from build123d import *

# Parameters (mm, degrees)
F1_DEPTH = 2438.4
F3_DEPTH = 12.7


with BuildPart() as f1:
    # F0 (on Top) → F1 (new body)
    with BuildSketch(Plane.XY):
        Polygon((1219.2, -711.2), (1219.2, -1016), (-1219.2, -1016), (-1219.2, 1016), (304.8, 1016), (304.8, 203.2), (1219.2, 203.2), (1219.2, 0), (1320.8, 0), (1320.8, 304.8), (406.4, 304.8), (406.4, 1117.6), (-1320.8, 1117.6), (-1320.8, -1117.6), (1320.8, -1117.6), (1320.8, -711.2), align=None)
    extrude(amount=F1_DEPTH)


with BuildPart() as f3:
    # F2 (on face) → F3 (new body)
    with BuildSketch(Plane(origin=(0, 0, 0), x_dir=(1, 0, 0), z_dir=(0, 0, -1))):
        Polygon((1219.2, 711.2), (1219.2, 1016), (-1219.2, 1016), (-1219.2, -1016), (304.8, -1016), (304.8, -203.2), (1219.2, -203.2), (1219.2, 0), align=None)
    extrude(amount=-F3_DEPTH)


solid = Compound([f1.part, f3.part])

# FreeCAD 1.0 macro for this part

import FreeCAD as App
import Part
import Sketcher

V = App.Vector
Q = App.Units.Quantity

doc = App.newDocument("Part")
body = doc.addObject("PartDesign::Body", "Body")

sketch1 = body.newObject("Sketcher::SketchObject", "Sketch")
sketch1.AttachmentSupport = (doc.getObject("XY_Plane"), [""])
sketch1.MapMode = "FlatFace"
sketch1.addGeometry([
    Part.LineSegment(V(1219, -711, 0), V(1219, -1016, 0)),
    Part.LineSegment(V(1219, -1016, 0), V(-1219, -1016, 0)),
    Part.LineSegment(V(-1219, -1016, 0), V(-1219, 1016, 0)),
    Part.LineSegment(V(-1219, 1016, 0), V(305, 1016, 0)),
    Part.LineSegment(V(305, 1016, 0), V(305, 203, 0)),
    Part.LineSegment(V(305, 203, 0), V(1219, 203, 0)),
    Part.LineSegment(V(1219, 203, 0), V(1219, 0, 0)),
    Part.LineSegment(V(1219, 0, 0), V(1321, 0, 0)),
    Part.LineSegment(V(1321, 0, 0), V(1321, 305, 0)),
    Part.LineSegment(V(1321, 305, 0), V(406, 305, 0)),
    Part.LineSegment(V(406, 305, 0), V(406, 1118, 0)),
    Part.LineSegment(V(406, 1118, 0), V(-1321, 1118, 0)),
    Part.LineSegment(V(-1321, 1118, 0), V(-1321, -1118, 0)),
    Part.LineSegment(V(-1321, -1118, 0), V(1321, -1118, 0)),
    Part.LineSegment(V(1321, -1118, 0), V(1321, -711, 0)),
    Part.LineSegment(V(1321, -711, 0), V(1219, -711, 0)),
], False)
sketch1.addConstraint([
    Sketcher.Constraint("Coincident", 0, 2, 1, 1),
    Sketcher.Constraint("Coincident", 1, 2, 2, 1),
    Sketcher.Constraint("Coincident", 2, 2, 3, 1),
    Sketcher.Constraint("Coincident", 3, 2, 4, 1),
    Sketcher.Constraint("Coincident", 4, 2, 5, 1),
    Sketcher.Constraint("Coincident", 5, 2, 6, 1),
    Sketcher.Constraint("Coincident", 6, 2, 7, 1),
    Sketcher.Constraint("Coincident", 7, 2, 8, 1),
    Sketcher.Constraint("Coincident", 8, 2, 9, 1),
    Sketcher.Constraint("Coincident", 9, 2, 10, 1),
    Sketcher.Constraint("Coincident", 10, 2, 11, 1),
    Sketcher.Constraint("Coincident", 11, 2, 12, 1),
    Sketcher.Constraint("Coincident", 12, 2, 13, 1),
    Sketcher.Constraint("Coincident", 13, 2, 14, 1),
    Sketcher.Constraint("Coincident", 14, 2, 15, 1),
    Sketcher.Constraint("Coincident", 15, 2, 0, 1),
    Sketcher.Constraint("Vertical", 0),
    Sketcher.Constraint("Horizontal", 1),
    Sketcher.Constraint("Vertical", 2),
    Sketcher.Constraint("Horizontal", 3),
    Sketcher.Constraint("Vertical", 4),
    Sketcher.Constraint("Horizontal", 5),
    Sketcher.Constraint("Vertical", 6),
    Sketcher.Constraint("Horizontal", 7),
    Sketcher.Constraint("Vertical", 8),
    Sketcher.Constraint("Horizontal", 9),
    Sketcher.Constraint("Vertical", 10),
    Sketcher.Constraint("Horizontal", 11),
    Sketcher.Constraint("Vertical", 12),
    Sketcher.Constraint("Horizontal", 13),
    Sketcher.Constraint("Vertical", 14),
    Sketcher.Constraint("Horizontal", 15),
    Sketcher.Constraint("Symmetric", 0, 2, 2, 2, -1, 1),
    Sketcher.Constraint("Symmetric", 11, 2, 13, 2, -1, 1),
    Sketcher.Constraint("PointOnObject", 6, 2, -1),
    Sketcher.Constraint("Vertical", 0, 2, 5, 2),
    Sketcher.Constraint("Vertical", 8, 2, 13, 2),
    Sketcher.Constraint("Equal", 5, 9),
    Sketcher.Constraint("Equal", 0, 8),
    Sketcher.Constraint("Equal", 4, 10),
    Sketcher.Constraint("DistanceX", 1, 2, 1, 1, Q("96 in")),
    Sketcher.Constraint("DistanceX", 3, 1, 3, 2, Q("60 in")),
    Sketcher.Constraint("DistanceX", 7, 1, 7, 2, Q("4 in")),
    Sketcher.Constraint("DistanceY", 0, 2, 0, 1, Q("12 in")),
    Sketcher.Constraint("DistanceY", 2, 1, 2, 2, Q("80 in")),
    Sketcher.Constraint("DistanceY", 4, 2, 4, 1, Q("32 in")),
])
pad1 = body.newObject("PartDesign::Pad", "Pad")
pad1.Profile = sketch1
pad1.Length = Q("96 in")
body2 = doc.addObject("PartDesign::Body", "Body001")

sketch2 = body2.newObject("Sketcher::SketchObject", "Sketch001")
sketch2.AttachmentSupport = (doc.getObject("XY_Plane001"), [""])
sketch2.MapMode = "FlatFace"
sketch2.addGeometry([
    Part.LineSegment(V(1219, -1016, 0), V(-1219, -1016, 0)),
    Part.LineSegment(V(-1219, -1016, 0), V(-1219, 1016, 0)),
    Part.LineSegment(V(-1219, 1016, 0), V(305, 1016, 0)),
    Part.LineSegment(V(305, 1016, 0), V(305, 203, 0)),
    Part.LineSegment(V(305, 203, 0), V(1219, 203, 0)),
    Part.LineSegment(V(1219, 203, 0), V(1219, -1016, 0)),
], False)
sketch2.addConstraint([
    Sketcher.Constraint("Coincident", 0, 2, 1, 1),
    Sketcher.Constraint("Coincident", 1, 2, 2, 1),
    Sketcher.Constraint("Coincident", 2, 2, 3, 1),
    Sketcher.Constraint("Coincident", 3, 2, 4, 1),
    Sketcher.Constraint("Coincident", 4, 2, 5, 1),
    Sketcher.Constraint("Coincident", 5, 2, 0, 1),
    Sketcher.Constraint("Horizontal", 0),
    Sketcher.Constraint("Vertical", 1),
    Sketcher.Constraint("Horizontal", 2),
    Sketcher.Constraint("Vertical", 3),
    Sketcher.Constraint("Horizontal", 4),
    Sketcher.Constraint("Vertical", 5),
    Sketcher.Constraint("Symmetric", 1, 2, 5, 2, -1, 1),
    Sketcher.Constraint("DistanceX", 0, 2, 0, 1, Q("96 in")),
    Sketcher.Constraint("DistanceX", 2, 1, 2, 2, Q("60 in")),
    Sketcher.Constraint("DistanceY", 1, 1, 1, 2, Q("80 in")),
    Sketcher.Constraint("DistanceY", 3, 2, 3, 1, Q("32 in")),
])
pad2 = body2.newObject("PartDesign::Pad", "Pad001")
pad2.Profile = sketch2
pad2.Length = Q("0.5 in")

doc.recompute()
